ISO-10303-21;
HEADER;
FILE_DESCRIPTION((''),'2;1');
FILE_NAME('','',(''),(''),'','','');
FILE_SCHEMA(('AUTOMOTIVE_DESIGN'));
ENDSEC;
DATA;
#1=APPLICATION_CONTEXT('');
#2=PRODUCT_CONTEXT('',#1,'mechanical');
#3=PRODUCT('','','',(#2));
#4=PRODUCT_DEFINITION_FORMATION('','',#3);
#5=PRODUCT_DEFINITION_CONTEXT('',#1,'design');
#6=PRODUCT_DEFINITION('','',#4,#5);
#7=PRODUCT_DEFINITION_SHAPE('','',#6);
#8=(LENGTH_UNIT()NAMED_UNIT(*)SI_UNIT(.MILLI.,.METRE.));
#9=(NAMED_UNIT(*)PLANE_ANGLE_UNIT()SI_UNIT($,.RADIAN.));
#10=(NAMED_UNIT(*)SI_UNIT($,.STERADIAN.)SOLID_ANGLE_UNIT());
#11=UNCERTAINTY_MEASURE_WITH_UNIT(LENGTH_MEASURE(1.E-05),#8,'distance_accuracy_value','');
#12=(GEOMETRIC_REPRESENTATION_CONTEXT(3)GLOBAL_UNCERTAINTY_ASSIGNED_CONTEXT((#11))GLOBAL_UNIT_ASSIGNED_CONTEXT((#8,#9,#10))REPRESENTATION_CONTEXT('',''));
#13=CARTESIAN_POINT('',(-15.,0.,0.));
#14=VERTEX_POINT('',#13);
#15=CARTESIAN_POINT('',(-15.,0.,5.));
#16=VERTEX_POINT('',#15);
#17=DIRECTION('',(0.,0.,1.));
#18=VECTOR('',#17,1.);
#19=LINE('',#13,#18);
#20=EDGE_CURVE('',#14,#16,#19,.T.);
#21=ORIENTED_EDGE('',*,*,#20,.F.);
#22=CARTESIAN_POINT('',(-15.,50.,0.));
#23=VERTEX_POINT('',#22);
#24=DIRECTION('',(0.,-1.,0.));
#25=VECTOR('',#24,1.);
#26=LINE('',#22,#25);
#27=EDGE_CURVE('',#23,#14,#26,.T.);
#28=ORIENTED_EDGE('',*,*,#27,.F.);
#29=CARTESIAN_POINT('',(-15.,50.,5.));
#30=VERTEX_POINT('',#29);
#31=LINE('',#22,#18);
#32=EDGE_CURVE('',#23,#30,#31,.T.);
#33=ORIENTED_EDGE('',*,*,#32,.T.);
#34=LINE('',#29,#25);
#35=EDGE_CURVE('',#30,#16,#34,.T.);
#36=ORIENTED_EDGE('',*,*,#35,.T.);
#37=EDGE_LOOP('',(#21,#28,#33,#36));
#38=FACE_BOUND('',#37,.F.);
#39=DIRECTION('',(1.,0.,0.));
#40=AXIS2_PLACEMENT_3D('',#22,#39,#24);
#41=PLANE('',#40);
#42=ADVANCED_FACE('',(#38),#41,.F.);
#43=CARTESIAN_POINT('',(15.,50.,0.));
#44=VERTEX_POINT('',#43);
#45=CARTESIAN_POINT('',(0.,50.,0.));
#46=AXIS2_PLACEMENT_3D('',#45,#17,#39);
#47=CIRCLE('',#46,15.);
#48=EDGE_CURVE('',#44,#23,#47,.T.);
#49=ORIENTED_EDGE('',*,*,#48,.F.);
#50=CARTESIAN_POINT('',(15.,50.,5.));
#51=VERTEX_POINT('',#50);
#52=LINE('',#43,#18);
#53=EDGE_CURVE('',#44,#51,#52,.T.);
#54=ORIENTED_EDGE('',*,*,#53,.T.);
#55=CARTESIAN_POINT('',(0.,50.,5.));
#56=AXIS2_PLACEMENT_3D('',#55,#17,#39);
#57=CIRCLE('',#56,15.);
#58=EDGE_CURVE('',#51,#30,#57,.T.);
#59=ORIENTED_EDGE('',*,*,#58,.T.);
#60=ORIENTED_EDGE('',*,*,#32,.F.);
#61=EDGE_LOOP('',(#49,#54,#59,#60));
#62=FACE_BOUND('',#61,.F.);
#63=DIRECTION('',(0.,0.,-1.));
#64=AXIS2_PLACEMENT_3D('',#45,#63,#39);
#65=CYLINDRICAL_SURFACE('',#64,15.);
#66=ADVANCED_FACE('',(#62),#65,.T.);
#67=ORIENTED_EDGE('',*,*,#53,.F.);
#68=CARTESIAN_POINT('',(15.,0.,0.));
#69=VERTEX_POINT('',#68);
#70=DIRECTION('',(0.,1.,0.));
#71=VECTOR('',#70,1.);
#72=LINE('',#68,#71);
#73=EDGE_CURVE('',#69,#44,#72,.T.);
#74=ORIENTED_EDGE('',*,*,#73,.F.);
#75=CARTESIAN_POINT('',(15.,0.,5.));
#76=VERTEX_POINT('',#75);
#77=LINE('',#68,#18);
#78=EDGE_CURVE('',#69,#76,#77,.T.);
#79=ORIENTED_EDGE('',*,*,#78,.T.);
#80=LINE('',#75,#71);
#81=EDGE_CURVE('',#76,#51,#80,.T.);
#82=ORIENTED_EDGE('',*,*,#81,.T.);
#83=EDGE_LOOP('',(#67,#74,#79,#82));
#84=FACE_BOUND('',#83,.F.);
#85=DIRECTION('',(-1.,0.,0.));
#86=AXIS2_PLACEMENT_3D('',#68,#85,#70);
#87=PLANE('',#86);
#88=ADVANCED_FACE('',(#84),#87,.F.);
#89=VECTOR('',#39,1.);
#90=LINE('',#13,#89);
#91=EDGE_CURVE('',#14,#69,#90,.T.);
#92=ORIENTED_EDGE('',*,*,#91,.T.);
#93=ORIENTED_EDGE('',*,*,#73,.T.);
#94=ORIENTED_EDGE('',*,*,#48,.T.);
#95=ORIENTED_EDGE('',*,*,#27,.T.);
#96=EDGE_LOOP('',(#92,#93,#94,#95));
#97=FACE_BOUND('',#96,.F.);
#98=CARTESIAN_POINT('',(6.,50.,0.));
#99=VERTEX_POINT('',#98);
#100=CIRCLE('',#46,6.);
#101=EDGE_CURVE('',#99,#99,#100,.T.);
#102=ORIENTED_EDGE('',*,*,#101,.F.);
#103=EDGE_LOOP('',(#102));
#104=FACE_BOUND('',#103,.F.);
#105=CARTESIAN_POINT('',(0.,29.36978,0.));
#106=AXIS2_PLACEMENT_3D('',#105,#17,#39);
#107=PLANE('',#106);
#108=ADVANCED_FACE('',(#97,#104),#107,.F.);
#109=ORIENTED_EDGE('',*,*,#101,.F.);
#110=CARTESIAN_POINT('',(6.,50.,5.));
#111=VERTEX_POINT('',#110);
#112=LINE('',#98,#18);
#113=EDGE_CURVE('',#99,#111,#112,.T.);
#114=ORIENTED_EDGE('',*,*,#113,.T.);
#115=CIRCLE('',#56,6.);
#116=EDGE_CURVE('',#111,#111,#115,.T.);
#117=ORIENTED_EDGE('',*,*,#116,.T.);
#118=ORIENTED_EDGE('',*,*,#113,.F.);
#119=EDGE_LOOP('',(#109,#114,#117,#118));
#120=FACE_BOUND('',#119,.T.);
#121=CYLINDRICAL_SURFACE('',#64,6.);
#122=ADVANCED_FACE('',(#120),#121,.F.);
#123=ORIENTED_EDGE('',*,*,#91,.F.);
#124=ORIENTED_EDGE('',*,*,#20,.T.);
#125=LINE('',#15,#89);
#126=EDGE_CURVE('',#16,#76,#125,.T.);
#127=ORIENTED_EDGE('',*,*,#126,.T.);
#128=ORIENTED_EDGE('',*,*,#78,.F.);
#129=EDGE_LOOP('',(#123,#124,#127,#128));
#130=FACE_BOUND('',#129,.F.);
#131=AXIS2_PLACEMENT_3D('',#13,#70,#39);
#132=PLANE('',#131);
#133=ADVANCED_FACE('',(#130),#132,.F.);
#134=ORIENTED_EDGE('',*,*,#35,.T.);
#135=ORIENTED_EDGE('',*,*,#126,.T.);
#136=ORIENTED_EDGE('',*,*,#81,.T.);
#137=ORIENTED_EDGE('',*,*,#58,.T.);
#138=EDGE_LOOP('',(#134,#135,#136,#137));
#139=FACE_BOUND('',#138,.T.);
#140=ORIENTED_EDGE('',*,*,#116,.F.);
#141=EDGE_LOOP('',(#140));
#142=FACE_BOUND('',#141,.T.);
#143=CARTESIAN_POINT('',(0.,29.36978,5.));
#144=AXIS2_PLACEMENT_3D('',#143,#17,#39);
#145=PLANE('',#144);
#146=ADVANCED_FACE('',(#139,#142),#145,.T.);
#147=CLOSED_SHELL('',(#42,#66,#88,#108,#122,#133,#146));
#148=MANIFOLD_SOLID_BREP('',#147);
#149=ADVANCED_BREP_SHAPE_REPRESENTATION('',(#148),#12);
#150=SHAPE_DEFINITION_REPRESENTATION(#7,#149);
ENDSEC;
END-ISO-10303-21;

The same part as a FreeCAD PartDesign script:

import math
import FreeCAD as App
import Part
import Sketcher

V = App.Vector

doc = App.newDocument("Part")
body = doc.addObject("PartDesign::Body", "Body")

# Sketch on XY plane
sketch1 = doc.addObject("Sketcher::SketchObject", "Sketch")
body.addObject(sketch1)
sketch1.AttachmentSupport = (doc.XY_Plane, [""])
sketch1.MapMode = "FlatFace"
sketch1.addGeometry([
    Part.LineSegment(V(-15, 50, 0), V(-15, 0, 0)),  # 0
    Part.LineSegment(V(-15, 0, 0), V(15, 0, 0)),  # 1
    Part.LineSegment(V(15, 0, 0), V(15, 50, 0)),  # 2
    Part.ArcOfCircle(Part.Circle(V(0, 50, 0), V(0, 0, 1), 15), math.radians(0), math.radians(180)),  # 3
    Part.Circle(V(0, 50, 0), V(0, 0, 1), 6),  # 4
], False)
sketch1.addConstraint([
    Sketcher.Constraint("Coincident", 0, 2, 1, 1),
    Sketcher.Constraint("Coincident", 1, 2, 2, 1),
    Sketcher.Constraint("Tangent", 2, 2, 3, 1),
    Sketcher.Constraint("Tangent", 3, 2, 0, 1),
    Sketcher.Constraint("Vertical", 0),
    Sketcher.Constraint("Horizontal", 1),
    Sketcher.Constraint("Vertical", 2),
    Sketcher.Constraint("Coincident", 4, 3, 3, 3),
    Sketcher.Constraint("Symmetric", 0, 2, 1, 2, -1, 1),
    Sketcher.Constraint("Diameter", 4, 12.0),
    Sketcher.Constraint("Radius", 3, 15.0),
    Sketcher.Constraint("DistanceY", 0, 2, 0, 1, 50.0),
])
pad1 = doc.addObject("PartDesign::Pad", "Pad")
body.addObject(pad1)
pad1.Profile = sketch1
pad1.Length = 5

doc.recompute()
